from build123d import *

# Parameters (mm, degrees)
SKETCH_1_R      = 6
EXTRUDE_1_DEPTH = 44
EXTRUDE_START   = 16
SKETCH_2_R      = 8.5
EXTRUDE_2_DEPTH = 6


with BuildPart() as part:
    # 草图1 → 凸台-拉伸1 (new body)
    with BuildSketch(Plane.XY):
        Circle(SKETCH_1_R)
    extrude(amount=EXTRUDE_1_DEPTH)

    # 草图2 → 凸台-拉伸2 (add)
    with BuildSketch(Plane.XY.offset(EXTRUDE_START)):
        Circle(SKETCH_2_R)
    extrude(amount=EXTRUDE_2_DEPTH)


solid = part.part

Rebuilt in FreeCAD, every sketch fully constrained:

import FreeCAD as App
import Part
import Sketcher

doc = App.newDocument("Part")
body = doc.addObject("PartDesign::Body", "Body")

# Sketch on XY plane
sketch1 = doc.addObject("Sketcher::SketchObject", "Sketch")
body.addObject(sketch1)
sketch1.AttachmentSupport = (doc.XY_Plane, [""])
sketch1.MapMode = "FlatFace"
sketch1.addGeometry(Part.Circle(App.Vector(0, 0, 0), App.Vector(0, 0, 1), 6), False)
sketch1.addConstraint(Sketcher.Constraint("Coincident", 0, 3, -1, 1))
sketch1.addConstraint(Sketcher.Constraint("Diameter", 0, 12.0))
pad1 = doc.addObject("PartDesign::Pad", "Pad")
body.addObject(pad1)
pad1.Profile = sketch1
pad1.Length = 44

# Sketch on XY plane
sketch2 = doc.addObject("Sketcher::SketchObject", "Sketch001")
body.addObject(sketch2)
sketch2.AttachmentSupport = (doc.XY_Plane, [""])
sketch2.MapMode = "FlatFace"
sketch2.AttachmentOffset = App.Placement(App.Vector(0, 0, 16), App.Rotation())
sketch2.addGeometry(Part.Circle(App.Vector(0, 0, 0), App.Vector(0, 0, 1), 8.5), False)
sketch2.addConstraint(Sketcher.Constraint("Coincident", 0, 3, -1, 1))
sketch2.addConstraint(Sketcher.Constraint("Diameter", 0, 17.0))
pad2 = doc.addObject("PartDesign::Pad", "Pad001")
body.addObject(pad2)
pad2.Profile = sketch2
pad2.Length = 6

doc.recompute()
